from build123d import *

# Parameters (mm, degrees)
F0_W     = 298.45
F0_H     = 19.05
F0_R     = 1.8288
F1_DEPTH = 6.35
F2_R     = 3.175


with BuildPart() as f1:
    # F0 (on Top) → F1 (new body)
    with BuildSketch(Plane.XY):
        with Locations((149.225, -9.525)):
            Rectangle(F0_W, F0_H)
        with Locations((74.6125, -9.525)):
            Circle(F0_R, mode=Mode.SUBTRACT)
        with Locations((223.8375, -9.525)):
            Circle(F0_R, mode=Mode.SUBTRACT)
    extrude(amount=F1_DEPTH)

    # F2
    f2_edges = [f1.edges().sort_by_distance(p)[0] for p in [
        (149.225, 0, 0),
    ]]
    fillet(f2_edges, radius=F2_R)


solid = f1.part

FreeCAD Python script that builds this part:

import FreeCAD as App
import Part
import Sketcher
Q = App.Units.Quantity


def edges_at(feature, points):
    """Names of the edges that pass closest to the given points."""
    edges = feature.Shape.Edges
    near = lambda p: min(range(len(edges)), key=lambda i: edges[i].distToShape(Part.Vertex(*p))[0])
    return sorted({f"Edge{near(p) + 1}" for p in points})


def add_polygon(sketch, points):
    """Adds a closed chain of lines whose ends are joined by coincident constraints."""
    first, n = sketch.GeometryCount, len(points)
    for a, b in zip(points, points[1:] + points[:1]):
        sketch.addGeometry(Part.LineSegment(App.Vector(*a, 0), App.Vector(*b, 0)), False)
    for i in range(n):
        sketch.addConstraint(Sketcher.Constraint("Coincident", first + i, 2, first + (i + 1) % n, 1))

doc = App.newDocument("Part")
params = doc.addObject("Spreadsheet::Sheet", "Params")
for row, (alias, value) in enumerate([
    ("sketch1_diameter", "0.144 in"),
    ("sketch1_width", "11.75 in"),
    ("sketch1_height", "0.75 in"),
    ("pad1_length", "0.25 in"),
    ("fillet_radius", "0.125 in"),
], start=1):
    params.set(f"A{row}", alias)
    params.set(f"B{row}", "=" + value)
    params.setAlias(f"B{row}", alias)

body = doc.addObject("PartDesign::Body", "Body")

sketch1 = doc.addObject("Sketcher::SketchObject", "Sketch")
body.addObject(sketch1)
sketch1.AttachmentSupport = (doc.XY_Plane, [""])
sketch1.MapMode = "FlatFace"
add_polygon(sketch1, [(0, 0), (0, -19.05), (298.45, -19.05), (298.45, 0)])
sketch1.addGeometry(Part.Circle(App.Vector(74.6125, -9.525, 0), App.Vector(0, 0, 1), 1.8288), False)
sketch1.addGeometry(Part.Circle(App.Vector(223.8375, -9.525, 0), App.Vector(0, 0, 1), 1.8288), False)
sketch1.addConstraint([
    Sketcher.Constraint("Vertical", 0),
    Sketcher.Constraint("Horizontal", 1),
    Sketcher.Constraint("Vertical", 2),
    Sketcher.Constraint("Horizontal", 3),
    Sketcher.Constraint("Coincident", 3, 2, -1, 1),
    Sketcher.Constraint("Equal", 4, 5),
    Sketcher.Constraint("Horizontal", 4, 3, 5, 3),
    Sketcher.Constraint("Diameter", 4, Q("0.144 in")),
    Sketcher.Constraint("DistanceX", 1, 1, 1, 2, Q("11.75 in")),
    Sketcher.Constraint("DistanceY", 0, 2, 0, 1, Q("0.75 in")),
    Sketcher.Constraint("DistanceX", -1, 1, 4, 3, Q("2.9375 in")),
    Sketcher.Constraint("DistanceY", 4, 3, -1, 1, Q("0.375 in")),
    Sketcher.Constraint("DistanceX", -1, 1, 5, 3, Q("8.8125 in")),
])
sketch1.setExpression("Constraints[11]", "Params.sketch1_diameter")
sketch1.setExpression("Constraints[12]", "Params.sketch1_width")
sketch1.setExpression("Constraints[13]", "Params.sketch1_height")
pad1 = doc.addObject("PartDesign::Pad", "Pad")
body.addObject(pad1)
pad1.Profile = sketch1
pad1.setExpression("Length", "Params.pad1_length")
doc.recompute()

fillet = doc.addObject("PartDesign::Fillet", "Fillet")
body.addObject(fillet)
fillet.Base = (pad1, edges_at(pad1, [(149.225, 0, 0)]))
fillet.setExpression("Radius", "Params.fillet_radius")

doc.recompute()
